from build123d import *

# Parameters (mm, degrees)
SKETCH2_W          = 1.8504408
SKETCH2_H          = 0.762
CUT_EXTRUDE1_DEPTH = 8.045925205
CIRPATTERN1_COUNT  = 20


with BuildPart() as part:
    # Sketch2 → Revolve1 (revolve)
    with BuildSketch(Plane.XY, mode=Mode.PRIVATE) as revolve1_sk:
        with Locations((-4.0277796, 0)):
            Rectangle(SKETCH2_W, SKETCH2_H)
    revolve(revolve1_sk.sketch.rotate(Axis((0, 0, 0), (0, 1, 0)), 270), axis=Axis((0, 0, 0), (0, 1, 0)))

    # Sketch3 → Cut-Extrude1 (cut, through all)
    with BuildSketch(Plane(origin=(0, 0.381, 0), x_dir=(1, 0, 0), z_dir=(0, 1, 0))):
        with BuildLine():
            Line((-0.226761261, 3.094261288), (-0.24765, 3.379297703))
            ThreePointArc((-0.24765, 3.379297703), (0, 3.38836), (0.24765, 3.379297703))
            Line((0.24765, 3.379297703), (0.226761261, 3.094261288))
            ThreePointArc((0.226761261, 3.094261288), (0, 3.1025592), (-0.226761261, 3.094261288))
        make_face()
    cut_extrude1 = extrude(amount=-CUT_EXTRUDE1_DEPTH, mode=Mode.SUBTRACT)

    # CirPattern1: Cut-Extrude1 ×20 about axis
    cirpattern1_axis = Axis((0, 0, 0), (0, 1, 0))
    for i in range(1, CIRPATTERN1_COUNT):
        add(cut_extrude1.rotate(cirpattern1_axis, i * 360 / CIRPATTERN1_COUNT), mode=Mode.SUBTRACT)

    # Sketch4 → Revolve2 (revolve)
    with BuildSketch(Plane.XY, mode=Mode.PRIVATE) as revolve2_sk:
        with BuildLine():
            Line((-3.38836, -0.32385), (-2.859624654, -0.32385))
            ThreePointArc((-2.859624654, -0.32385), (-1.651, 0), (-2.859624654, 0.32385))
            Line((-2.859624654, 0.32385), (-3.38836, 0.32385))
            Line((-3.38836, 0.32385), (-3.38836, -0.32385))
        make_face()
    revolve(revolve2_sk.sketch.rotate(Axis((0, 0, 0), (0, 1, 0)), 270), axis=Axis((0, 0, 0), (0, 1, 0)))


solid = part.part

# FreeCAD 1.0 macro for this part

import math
import FreeCAD as App
import Part
import Sketcher
Q = App.Units.Quantity

doc = App.newDocument("Part")
params = doc.addObject("Spreadsheet::Sheet", "Params")
for row, (alias, value) in enumerate([
    ("sketch1_height", "0.03 in"),
    ("revolution_angle", "360 deg"),
    ("revolution2_angle", "360 deg"),
], start=1):
    params.set(f"A{row}", alias)
    params.set(f"B{row}", "=" + value)
    params.setAlias(f"B{row}", alias)

body = doc.addObject("PartDesign::Body", "Body")

# Sketch on XY plane
sketch1 = body.newObject("Sketcher::SketchObject", "Sketch")
sketch1.AttachmentSupport = (doc.getObject("XY_Plane"), [""])
sketch1.MapMode = "FlatFace"
sketch1.addGeometry([
    Part.LineSegment(App.Vector(-5, 0.4, 0), App.Vector(-5, -0.4, 0)),
    Part.LineSegment(App.Vector(-5, -0.4, 0), App.Vector(-3.1, -0.4, 0)),
    Part.LineSegment(App.Vector(-3.1, -0.4, 0), App.Vector(-3.1, 0.4, 0)),
    Part.LineSegment(App.Vector(-3.1, 0.4, 0), App.Vector(-5, 0.4, 0)),
], False)
sketch1.addConstraint([
    Sketcher.Constraint("Coincident", 0, 2, 1, 1),
    Sketcher.Constraint("Coincident", 1, 2, 2, 1),
    Sketcher.Constraint("Coincident", 2, 2, 3, 1),
    Sketcher.Constraint("Coincident", 3, 2, 0, 1),
    Sketcher.Constraint("Vertical", 0),
    Sketcher.Constraint("Horizontal", 1),
    Sketcher.Constraint("Vertical", 2),
    Sketcher.Constraint("Horizontal", 3),
    Sketcher.Constraint("DistanceY", 0, 2, 0, 1, Q("0.03 in")),
    Sketcher.Constraint("DistanceX", 0, 2, -1, 1, Q("0.195 in")),
    Sketcher.Constraint("DistanceY", 0, 2, -1, 1, Q("0.015 in")),
    Sketcher.Constraint("DistanceX", 1, 1, 1, 2, 1.850441),
])
sketch1.setExpression("Constraints[8]", "Params.sketch1_height")
revolution = body.newObject("PartDesign::Revolution", "Revolution")
revolution.Profile = sketch1
revolution.ReferenceAxis = (sketch1, ["V_Axis"])
revolution.setExpression("Angle", "Params.revolution_angle")

# Sketch on XZ plane
sketch2 = body.newObject("Sketcher::SketchObject", "Sketch001")
sketch2.AttachmentSupport = (doc.getObject("XZ_Plane"), [""])
sketch2.MapMode = "FlatFace"
sketch2.AttachmentOffset = App.Placement(App.Vector(0, 0, -0.015 * 25.4), App.Rotation())
sketch2.addGeometry([
    Part.LineSegment(App.Vector(-0.25, -3.38, 0), App.Vector(-0.23, -3.09, 0)),
    Part.ArcOfCircle(Part.Circle(App.Vector(0, 0, 0), App.Vector(0, 0, 1), 3.1), math.radians(-94.19), math.radians(-85.81)),
    Part.LineSegment(App.Vector(0.23, -3.09, 0), App.Vector(0.25, -3.38, 0)),
    Part.ArcOfCircle(Part.Circle(App.Vector(0, 0, 0), App.Vector(0, 0, 1), 3.39), math.radians(-94.19), math.radians(-85.81)),
], False)
sketch2.addConstraint([
    Sketcher.Constraint("Coincident", 0, 2, 1, 1),
    Sketcher.Constraint("Coincident", 1, 2, 2, 1),
    Sketcher.Constraint("Coincident", 2, 2, 3, 2),
    Sketcher.Constraint("Coincident", 3, 1, 0, 1),
    Sketcher.Constraint("Coincident", 1, 3, -1, 1),
    Sketcher.Constraint("Coincident", 3, 3, -1, 1),
    Sketcher.Constraint("Horizontal", 0, 2, 1, 2),
    Sketcher.Constraint("Horizontal", 2, 2, 3, 1),
    Sketcher.Constraint("Radius", 3, Q("0.1334 in")),
    Sketcher.Constraint("Radius", 1, 3.102559),
    Sketcher.Constraint("DistanceX", 3, 1, 2, 2, Q("0.0195 in")),
    Sketcher.Constraint("DistanceX", 0, 2, -1, 1, 0.226761),
])
pocket1 = body.newObject("PartDesign::Pocket", "Pocket")
pocket1.Profile = sketch2
pocket1.Type = "ThroughAll"
pocket1.Reversed = True
doc.recompute()

polarpattern = body.newObject("PartDesign::PolarPattern", "PolarPattern")
polarpattern.Originals = [pocket1]
polarpattern.Axis = (doc.getObject("Y_Axis"), [""])
polarpattern.Angle = 360
polarpattern.Occurrences = 20
body.Tip = polarpattern

# Sketch on XY plane
sketch3 = body.newObject("Sketcher::SketchObject", "Sketch002")
sketch3.AttachmentSupport = (doc.getObject("XY_Plane"), [""])
sketch3.MapMode = "FlatFace"
sketch3.addGeometry([
    Part.LineSegment(App.Vector(-3.4, -0.3, 0), App.Vector(-2.9, -0.3, 0)),
    Part.ArcOfCircle(Part.Circle(App.Vector(-2.3, 0, 0), App.Vector(0, 0, 1), 0.6), math.radians(-150), math.radians(150)),
    Part.LineSegment(App.Vector(-2.9, 0.3, 0), App.Vector(-3.4, 0.3, 0)),
    Part.LineSegment(App.Vector(-3.4, 0.3, 0), App.Vector(-3.4, -0.3, 0)),
], False)
sketch3.addConstraint([
    Sketcher.Constraint("Coincident", 0, 2, 1, 1),
    Sketcher.Constraint("Coincident", 1, 2, 2, 1),
    Sketcher.Constraint("Coincident", 2, 2, 3, 1),
    Sketcher.Constraint("Coincident", 3, 2, 0, 1),
    Sketcher.Constraint("Horizontal", 0),
    Sketcher.Constraint("Horizontal", 2),
    Sketcher.Constraint("Vertical", 3),
    Sketcher.Constraint("Symmetric", 0, 2, 1, 2, -1),
    Sketcher.Constraint("Radius", 1, Q("0.0255 in")),
    Sketcher.Constraint("DistanceY", 3, 2, 3, 1, Q("0.0255 in")),
    Sketcher.Constraint("DistanceX", 1, 3, -1, 1, Q("0.0905 in")),
    Sketcher.Constraint("DistanceX", 2, 2, -1, 1, Q("0.1334 in")),
])
revolution2 = body.newObject("PartDesign::Revolution", "Revolution001")
revolution2.Profile = sketch3
revolution2.ReferenceAxis = (sketch3, ["V_Axis"])
revolution2.setExpression("Angle", "Params.revolution2_angle")

doc.recompute()
